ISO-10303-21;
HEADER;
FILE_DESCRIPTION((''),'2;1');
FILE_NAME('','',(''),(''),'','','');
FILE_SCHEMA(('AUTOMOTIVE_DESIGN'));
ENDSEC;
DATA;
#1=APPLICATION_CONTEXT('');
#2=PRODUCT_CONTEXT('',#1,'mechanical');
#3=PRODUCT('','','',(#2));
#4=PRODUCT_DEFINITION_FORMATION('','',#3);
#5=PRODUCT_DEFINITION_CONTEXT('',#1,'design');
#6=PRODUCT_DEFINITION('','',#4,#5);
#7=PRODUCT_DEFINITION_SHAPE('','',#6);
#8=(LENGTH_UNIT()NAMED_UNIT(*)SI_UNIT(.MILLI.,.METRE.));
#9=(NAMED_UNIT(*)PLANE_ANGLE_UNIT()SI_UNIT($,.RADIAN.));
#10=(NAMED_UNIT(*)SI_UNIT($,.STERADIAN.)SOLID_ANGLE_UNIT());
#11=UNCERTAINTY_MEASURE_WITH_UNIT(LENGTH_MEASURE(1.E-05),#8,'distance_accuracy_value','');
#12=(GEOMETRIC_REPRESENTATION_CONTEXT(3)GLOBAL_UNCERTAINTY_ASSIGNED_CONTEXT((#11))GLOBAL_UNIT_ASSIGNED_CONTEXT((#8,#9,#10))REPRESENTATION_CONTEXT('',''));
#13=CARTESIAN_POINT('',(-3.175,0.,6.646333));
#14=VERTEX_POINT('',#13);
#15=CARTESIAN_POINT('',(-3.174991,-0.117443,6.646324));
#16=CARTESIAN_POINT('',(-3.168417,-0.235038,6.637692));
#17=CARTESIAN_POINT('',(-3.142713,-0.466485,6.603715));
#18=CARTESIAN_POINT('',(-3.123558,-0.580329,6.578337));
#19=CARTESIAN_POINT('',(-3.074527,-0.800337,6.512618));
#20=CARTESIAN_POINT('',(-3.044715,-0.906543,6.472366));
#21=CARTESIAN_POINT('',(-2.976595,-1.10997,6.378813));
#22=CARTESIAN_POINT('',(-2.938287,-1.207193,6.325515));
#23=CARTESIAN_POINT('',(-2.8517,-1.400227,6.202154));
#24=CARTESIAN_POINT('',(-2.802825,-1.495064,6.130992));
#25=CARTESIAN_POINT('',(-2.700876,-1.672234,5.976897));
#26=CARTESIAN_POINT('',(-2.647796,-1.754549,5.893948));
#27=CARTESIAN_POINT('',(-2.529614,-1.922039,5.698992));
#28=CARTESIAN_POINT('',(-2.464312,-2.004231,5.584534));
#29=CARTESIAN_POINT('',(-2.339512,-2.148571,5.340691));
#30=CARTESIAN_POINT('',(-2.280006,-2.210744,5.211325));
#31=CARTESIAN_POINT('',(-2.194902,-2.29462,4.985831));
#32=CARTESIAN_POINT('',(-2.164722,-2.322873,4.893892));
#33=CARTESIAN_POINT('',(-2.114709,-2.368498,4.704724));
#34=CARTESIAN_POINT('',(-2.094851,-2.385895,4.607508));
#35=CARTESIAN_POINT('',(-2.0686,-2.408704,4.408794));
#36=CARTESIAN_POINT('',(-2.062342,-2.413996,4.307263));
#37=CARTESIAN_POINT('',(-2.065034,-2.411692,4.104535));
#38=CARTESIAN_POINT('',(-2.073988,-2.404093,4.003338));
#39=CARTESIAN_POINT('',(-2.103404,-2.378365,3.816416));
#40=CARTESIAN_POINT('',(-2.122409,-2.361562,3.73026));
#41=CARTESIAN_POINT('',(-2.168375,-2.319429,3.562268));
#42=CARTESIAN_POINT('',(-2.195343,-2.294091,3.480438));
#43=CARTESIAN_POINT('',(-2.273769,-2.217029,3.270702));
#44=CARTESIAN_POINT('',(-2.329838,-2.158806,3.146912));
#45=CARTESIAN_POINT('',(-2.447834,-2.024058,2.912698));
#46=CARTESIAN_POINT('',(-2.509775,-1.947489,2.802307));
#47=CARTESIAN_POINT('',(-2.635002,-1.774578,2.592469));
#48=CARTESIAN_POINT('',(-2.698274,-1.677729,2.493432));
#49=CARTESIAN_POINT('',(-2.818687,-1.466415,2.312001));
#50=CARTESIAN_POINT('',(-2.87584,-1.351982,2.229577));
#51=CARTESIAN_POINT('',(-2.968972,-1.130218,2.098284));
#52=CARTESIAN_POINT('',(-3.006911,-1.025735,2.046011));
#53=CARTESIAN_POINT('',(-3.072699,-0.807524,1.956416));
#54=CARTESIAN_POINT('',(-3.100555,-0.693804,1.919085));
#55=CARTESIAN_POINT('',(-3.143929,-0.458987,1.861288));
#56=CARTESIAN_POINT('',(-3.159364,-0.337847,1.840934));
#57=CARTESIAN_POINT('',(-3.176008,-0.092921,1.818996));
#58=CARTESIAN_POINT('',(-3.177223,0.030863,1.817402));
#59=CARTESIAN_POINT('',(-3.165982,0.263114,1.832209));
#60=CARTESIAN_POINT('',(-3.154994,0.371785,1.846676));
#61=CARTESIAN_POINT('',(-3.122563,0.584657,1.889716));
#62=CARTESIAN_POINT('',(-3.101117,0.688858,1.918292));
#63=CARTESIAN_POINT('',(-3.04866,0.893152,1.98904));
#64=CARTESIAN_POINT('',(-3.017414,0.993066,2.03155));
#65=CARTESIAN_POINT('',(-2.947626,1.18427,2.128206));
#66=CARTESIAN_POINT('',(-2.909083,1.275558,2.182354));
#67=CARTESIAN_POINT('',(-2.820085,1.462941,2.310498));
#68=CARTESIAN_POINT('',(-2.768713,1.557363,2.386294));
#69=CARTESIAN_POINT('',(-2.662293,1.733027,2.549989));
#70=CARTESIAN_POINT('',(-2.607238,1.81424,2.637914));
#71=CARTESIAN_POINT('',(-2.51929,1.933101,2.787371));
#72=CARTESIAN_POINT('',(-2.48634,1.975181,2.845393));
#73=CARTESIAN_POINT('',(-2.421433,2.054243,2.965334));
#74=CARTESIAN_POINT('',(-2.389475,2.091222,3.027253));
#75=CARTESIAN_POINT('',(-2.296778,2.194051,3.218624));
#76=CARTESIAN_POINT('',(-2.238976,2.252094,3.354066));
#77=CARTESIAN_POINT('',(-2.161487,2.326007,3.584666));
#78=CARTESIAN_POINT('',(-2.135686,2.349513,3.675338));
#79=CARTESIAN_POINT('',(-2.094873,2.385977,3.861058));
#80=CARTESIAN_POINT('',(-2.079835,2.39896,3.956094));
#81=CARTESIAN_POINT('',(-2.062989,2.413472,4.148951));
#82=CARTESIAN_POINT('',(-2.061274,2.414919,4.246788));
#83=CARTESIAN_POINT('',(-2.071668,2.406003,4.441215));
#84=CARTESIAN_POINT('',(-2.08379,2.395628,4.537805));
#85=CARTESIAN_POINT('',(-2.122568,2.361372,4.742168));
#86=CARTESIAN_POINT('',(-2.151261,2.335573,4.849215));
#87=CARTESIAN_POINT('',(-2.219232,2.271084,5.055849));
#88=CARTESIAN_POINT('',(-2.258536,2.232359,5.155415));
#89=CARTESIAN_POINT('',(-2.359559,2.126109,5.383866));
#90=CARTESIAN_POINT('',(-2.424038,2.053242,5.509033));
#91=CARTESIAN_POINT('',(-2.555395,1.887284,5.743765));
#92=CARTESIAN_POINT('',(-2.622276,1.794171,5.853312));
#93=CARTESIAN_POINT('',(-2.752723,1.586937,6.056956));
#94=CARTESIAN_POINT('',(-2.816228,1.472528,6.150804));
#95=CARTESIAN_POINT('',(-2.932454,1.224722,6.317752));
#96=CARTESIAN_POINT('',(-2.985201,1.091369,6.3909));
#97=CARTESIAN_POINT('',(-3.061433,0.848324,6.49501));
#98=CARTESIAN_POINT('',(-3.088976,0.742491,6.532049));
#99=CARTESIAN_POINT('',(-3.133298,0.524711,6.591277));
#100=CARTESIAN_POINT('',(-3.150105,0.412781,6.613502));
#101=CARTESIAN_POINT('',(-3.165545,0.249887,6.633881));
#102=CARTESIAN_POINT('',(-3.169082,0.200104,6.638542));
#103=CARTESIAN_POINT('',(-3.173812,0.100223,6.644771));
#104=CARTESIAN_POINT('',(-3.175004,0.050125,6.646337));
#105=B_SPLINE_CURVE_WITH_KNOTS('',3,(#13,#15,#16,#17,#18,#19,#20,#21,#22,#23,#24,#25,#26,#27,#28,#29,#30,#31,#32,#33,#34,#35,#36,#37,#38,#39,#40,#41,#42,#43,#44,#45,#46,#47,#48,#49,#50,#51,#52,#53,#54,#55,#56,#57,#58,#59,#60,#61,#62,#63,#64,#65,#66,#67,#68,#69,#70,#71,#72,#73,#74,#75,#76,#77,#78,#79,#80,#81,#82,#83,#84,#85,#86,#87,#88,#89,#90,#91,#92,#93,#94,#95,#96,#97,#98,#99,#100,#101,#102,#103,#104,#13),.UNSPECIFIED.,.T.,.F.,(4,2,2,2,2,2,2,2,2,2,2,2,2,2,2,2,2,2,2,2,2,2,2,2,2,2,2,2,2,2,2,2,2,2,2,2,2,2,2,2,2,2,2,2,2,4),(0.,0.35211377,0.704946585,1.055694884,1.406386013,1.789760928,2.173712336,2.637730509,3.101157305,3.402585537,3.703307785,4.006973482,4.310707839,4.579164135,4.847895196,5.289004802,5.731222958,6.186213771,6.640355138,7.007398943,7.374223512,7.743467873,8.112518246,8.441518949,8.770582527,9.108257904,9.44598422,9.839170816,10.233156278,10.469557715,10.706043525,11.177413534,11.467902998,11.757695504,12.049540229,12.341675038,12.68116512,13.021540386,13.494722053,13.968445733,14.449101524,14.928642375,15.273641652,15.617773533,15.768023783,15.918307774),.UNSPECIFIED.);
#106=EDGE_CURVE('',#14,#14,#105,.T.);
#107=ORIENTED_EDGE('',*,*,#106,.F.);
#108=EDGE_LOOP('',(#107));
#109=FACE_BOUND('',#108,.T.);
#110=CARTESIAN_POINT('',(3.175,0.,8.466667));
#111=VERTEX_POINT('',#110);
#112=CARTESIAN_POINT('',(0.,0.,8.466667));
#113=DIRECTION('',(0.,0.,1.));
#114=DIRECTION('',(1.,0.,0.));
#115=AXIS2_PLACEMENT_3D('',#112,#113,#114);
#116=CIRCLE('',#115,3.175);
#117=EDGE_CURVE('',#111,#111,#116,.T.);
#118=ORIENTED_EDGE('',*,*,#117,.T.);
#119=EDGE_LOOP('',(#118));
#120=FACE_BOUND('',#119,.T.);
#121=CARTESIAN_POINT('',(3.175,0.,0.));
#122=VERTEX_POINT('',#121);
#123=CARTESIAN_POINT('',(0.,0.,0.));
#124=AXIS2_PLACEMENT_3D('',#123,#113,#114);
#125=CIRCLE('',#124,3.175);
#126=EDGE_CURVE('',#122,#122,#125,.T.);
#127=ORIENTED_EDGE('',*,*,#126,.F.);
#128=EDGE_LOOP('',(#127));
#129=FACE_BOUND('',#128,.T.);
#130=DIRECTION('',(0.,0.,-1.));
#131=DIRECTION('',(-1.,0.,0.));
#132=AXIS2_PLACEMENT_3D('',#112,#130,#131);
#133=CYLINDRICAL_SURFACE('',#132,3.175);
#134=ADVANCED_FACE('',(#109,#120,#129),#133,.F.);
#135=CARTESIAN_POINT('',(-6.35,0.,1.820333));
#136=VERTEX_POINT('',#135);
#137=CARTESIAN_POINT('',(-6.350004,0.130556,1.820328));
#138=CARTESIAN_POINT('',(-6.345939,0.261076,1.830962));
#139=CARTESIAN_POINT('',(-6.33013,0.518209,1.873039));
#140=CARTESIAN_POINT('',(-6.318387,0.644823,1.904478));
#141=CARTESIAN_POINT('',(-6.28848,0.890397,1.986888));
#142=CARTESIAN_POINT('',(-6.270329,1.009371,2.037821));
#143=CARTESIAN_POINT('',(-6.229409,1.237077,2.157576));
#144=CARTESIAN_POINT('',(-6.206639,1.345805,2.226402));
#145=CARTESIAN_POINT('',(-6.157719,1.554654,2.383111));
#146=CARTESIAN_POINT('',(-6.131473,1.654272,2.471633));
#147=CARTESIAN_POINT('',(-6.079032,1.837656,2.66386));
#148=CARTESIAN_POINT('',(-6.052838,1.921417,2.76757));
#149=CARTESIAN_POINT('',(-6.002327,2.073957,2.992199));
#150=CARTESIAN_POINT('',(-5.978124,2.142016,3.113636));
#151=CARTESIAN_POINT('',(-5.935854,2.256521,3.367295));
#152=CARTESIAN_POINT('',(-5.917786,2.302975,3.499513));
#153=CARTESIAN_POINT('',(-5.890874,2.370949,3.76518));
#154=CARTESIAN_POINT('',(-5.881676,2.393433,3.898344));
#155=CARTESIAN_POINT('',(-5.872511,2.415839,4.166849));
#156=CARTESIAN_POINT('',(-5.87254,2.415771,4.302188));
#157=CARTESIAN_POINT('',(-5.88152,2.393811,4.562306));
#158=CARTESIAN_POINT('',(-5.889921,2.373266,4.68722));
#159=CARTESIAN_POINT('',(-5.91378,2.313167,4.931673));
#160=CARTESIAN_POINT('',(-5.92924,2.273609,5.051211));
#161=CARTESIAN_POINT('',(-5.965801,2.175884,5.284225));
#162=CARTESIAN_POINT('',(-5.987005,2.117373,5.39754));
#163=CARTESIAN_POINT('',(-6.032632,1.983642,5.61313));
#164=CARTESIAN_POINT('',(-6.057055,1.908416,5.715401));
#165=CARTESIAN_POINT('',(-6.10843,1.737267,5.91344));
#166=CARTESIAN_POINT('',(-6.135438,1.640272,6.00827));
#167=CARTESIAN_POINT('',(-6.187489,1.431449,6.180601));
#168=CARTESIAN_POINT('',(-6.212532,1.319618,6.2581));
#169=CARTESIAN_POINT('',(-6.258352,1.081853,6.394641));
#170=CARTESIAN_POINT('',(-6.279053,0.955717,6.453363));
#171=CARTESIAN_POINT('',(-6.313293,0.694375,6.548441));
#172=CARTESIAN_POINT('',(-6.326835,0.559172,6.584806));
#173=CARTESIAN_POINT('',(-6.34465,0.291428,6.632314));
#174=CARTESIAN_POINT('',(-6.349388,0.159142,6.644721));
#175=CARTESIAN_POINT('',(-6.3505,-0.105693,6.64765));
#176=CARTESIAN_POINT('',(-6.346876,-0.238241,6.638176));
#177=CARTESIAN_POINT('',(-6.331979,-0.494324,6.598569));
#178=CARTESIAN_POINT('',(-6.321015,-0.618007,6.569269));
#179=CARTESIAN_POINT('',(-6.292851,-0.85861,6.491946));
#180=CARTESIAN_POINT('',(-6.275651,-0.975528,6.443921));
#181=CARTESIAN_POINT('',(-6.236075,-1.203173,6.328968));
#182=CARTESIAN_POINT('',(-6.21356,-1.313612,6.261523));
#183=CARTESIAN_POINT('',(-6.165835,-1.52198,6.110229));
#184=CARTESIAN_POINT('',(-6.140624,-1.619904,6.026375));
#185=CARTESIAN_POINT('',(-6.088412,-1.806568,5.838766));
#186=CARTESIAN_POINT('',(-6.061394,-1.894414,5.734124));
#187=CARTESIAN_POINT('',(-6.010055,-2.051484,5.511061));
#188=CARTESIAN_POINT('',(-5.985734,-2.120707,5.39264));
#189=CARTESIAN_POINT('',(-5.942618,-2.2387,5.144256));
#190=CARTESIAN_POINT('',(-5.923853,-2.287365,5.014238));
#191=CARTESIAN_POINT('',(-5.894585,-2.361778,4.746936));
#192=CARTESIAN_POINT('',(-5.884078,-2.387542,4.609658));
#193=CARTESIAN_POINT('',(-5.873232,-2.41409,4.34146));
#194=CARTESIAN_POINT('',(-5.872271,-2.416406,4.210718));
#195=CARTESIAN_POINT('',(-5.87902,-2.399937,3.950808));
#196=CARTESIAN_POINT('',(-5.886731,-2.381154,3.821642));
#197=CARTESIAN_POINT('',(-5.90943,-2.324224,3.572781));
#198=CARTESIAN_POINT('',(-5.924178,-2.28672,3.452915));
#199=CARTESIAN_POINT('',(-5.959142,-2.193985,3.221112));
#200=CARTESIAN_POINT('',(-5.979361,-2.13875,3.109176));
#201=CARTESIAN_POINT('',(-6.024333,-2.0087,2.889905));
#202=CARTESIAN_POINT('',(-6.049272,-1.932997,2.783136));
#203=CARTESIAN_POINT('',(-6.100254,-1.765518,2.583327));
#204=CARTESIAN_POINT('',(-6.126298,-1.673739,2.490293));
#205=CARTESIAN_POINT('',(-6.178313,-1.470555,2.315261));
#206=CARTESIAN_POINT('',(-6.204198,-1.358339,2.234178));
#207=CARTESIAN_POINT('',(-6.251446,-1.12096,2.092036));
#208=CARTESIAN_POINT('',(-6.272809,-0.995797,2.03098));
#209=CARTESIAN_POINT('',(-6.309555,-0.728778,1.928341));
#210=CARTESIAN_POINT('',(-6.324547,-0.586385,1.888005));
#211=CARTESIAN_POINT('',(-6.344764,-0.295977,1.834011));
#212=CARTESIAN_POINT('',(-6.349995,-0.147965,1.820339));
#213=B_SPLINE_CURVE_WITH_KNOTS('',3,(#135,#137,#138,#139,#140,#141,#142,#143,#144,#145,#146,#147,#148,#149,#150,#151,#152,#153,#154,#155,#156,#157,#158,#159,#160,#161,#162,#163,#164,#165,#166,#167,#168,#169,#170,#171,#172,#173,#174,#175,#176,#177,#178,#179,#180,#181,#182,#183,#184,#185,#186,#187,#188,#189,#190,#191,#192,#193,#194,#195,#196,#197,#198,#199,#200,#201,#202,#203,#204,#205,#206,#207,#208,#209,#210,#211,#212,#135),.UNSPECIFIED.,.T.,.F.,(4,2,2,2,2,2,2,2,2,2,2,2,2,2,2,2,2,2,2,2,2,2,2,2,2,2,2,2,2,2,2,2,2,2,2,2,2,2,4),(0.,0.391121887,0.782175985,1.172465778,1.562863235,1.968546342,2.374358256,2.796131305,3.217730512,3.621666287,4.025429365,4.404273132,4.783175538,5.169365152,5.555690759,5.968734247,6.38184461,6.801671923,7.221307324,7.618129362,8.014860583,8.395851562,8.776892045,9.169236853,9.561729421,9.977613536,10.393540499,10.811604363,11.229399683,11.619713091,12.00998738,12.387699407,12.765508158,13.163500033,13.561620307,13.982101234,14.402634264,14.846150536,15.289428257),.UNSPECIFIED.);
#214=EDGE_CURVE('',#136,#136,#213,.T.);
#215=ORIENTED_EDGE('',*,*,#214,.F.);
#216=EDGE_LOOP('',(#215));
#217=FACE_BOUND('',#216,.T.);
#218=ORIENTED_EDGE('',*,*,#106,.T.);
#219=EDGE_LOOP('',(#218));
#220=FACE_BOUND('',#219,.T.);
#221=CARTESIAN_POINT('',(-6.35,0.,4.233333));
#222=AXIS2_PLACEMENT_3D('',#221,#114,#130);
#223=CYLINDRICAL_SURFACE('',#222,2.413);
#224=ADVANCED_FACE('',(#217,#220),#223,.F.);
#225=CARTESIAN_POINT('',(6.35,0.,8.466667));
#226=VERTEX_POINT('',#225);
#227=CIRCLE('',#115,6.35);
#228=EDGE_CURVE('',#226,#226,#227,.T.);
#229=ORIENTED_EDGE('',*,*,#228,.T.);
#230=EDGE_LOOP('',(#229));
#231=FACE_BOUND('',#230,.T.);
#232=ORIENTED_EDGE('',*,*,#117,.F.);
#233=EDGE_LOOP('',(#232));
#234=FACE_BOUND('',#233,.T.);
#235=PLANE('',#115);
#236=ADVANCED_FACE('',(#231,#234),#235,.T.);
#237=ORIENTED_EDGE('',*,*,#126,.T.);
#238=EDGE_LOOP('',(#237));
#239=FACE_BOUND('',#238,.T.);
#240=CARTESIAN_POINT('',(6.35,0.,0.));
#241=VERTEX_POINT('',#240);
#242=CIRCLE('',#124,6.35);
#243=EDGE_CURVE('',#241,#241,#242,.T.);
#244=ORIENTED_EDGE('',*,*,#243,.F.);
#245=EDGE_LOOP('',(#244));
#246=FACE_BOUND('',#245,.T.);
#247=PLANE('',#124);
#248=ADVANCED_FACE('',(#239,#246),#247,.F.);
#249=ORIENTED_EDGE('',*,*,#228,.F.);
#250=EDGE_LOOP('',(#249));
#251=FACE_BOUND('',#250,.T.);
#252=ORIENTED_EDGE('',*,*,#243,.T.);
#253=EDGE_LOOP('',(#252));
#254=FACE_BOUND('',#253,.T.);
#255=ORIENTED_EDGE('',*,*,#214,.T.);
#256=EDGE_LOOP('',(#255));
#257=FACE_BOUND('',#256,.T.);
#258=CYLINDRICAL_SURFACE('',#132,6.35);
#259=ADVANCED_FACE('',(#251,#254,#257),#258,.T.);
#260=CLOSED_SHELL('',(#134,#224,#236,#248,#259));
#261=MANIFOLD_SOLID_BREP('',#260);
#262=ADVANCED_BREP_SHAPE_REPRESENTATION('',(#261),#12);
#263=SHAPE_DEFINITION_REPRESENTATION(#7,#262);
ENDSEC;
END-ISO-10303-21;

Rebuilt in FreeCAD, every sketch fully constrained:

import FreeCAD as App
import Part
import Sketcher
Q = App.Units.Quantity

doc = App.newDocument("Part")
body = doc.addObject("PartDesign::Body", "Body")

# Sketch on XY plane
sketch1 = body.newObject("Sketcher::SketchObject", "Sketch")
sketch1.AttachmentSupport = (doc.getObject("XY_Plane"), [""])
sketch1.MapMode = "FlatFace"
sketch1.addGeometry([
    Part.Circle(App.Vector(0, 0, 0), App.Vector(0, 0, 1), 6.3),
    Part.Circle(App.Vector(0, 0, 0), App.Vector(0, 0, 1), 3.2),
], False)
sketch1.addConstraint([
    Sketcher.Constraint("Coincident", 0, 3, -1, 1),
    Sketcher.Constraint("Coincident", 1, 3, -1, 1),
    Sketcher.Constraint("Diameter", 0, Q("0.5 in")),
    Sketcher.Constraint("Diameter", 1, Q("0.25 in")),
])
pad1 = body.newObject("PartDesign::Pad", "Pad")
pad1.Profile = sketch1
pad1.Length = 8.466667

# Sketch on YZ plane
sketch2 = body.newObject("Sketcher::SketchObject", "Sketch001")
sketch2.AttachmentSupport = (doc.getObject("YZ_Plane"), [""])
sketch2.MapMode = "FlatFace"
sketch2.addGeometry(Part.Circle(App.Vector(0, 4.2, 0), App.Vector(0, 0, 1), 2.4), False)
sketch2.addConstraint([
    Sketcher.Constraint("PointOnObject", 0, 3, -2),
    Sketcher.Constraint("Diameter", 0, Q("0.19 in")),
    Sketcher.Constraint("DistanceY", -1, 1, 0, 3, Q("4.233333 mm")),
])
pocket1 = body.newObject("PartDesign::Pocket", "Pocket")
pocket1.Profile = sketch2
pocket1.Type = "ThroughAll"

doc.recompute()
